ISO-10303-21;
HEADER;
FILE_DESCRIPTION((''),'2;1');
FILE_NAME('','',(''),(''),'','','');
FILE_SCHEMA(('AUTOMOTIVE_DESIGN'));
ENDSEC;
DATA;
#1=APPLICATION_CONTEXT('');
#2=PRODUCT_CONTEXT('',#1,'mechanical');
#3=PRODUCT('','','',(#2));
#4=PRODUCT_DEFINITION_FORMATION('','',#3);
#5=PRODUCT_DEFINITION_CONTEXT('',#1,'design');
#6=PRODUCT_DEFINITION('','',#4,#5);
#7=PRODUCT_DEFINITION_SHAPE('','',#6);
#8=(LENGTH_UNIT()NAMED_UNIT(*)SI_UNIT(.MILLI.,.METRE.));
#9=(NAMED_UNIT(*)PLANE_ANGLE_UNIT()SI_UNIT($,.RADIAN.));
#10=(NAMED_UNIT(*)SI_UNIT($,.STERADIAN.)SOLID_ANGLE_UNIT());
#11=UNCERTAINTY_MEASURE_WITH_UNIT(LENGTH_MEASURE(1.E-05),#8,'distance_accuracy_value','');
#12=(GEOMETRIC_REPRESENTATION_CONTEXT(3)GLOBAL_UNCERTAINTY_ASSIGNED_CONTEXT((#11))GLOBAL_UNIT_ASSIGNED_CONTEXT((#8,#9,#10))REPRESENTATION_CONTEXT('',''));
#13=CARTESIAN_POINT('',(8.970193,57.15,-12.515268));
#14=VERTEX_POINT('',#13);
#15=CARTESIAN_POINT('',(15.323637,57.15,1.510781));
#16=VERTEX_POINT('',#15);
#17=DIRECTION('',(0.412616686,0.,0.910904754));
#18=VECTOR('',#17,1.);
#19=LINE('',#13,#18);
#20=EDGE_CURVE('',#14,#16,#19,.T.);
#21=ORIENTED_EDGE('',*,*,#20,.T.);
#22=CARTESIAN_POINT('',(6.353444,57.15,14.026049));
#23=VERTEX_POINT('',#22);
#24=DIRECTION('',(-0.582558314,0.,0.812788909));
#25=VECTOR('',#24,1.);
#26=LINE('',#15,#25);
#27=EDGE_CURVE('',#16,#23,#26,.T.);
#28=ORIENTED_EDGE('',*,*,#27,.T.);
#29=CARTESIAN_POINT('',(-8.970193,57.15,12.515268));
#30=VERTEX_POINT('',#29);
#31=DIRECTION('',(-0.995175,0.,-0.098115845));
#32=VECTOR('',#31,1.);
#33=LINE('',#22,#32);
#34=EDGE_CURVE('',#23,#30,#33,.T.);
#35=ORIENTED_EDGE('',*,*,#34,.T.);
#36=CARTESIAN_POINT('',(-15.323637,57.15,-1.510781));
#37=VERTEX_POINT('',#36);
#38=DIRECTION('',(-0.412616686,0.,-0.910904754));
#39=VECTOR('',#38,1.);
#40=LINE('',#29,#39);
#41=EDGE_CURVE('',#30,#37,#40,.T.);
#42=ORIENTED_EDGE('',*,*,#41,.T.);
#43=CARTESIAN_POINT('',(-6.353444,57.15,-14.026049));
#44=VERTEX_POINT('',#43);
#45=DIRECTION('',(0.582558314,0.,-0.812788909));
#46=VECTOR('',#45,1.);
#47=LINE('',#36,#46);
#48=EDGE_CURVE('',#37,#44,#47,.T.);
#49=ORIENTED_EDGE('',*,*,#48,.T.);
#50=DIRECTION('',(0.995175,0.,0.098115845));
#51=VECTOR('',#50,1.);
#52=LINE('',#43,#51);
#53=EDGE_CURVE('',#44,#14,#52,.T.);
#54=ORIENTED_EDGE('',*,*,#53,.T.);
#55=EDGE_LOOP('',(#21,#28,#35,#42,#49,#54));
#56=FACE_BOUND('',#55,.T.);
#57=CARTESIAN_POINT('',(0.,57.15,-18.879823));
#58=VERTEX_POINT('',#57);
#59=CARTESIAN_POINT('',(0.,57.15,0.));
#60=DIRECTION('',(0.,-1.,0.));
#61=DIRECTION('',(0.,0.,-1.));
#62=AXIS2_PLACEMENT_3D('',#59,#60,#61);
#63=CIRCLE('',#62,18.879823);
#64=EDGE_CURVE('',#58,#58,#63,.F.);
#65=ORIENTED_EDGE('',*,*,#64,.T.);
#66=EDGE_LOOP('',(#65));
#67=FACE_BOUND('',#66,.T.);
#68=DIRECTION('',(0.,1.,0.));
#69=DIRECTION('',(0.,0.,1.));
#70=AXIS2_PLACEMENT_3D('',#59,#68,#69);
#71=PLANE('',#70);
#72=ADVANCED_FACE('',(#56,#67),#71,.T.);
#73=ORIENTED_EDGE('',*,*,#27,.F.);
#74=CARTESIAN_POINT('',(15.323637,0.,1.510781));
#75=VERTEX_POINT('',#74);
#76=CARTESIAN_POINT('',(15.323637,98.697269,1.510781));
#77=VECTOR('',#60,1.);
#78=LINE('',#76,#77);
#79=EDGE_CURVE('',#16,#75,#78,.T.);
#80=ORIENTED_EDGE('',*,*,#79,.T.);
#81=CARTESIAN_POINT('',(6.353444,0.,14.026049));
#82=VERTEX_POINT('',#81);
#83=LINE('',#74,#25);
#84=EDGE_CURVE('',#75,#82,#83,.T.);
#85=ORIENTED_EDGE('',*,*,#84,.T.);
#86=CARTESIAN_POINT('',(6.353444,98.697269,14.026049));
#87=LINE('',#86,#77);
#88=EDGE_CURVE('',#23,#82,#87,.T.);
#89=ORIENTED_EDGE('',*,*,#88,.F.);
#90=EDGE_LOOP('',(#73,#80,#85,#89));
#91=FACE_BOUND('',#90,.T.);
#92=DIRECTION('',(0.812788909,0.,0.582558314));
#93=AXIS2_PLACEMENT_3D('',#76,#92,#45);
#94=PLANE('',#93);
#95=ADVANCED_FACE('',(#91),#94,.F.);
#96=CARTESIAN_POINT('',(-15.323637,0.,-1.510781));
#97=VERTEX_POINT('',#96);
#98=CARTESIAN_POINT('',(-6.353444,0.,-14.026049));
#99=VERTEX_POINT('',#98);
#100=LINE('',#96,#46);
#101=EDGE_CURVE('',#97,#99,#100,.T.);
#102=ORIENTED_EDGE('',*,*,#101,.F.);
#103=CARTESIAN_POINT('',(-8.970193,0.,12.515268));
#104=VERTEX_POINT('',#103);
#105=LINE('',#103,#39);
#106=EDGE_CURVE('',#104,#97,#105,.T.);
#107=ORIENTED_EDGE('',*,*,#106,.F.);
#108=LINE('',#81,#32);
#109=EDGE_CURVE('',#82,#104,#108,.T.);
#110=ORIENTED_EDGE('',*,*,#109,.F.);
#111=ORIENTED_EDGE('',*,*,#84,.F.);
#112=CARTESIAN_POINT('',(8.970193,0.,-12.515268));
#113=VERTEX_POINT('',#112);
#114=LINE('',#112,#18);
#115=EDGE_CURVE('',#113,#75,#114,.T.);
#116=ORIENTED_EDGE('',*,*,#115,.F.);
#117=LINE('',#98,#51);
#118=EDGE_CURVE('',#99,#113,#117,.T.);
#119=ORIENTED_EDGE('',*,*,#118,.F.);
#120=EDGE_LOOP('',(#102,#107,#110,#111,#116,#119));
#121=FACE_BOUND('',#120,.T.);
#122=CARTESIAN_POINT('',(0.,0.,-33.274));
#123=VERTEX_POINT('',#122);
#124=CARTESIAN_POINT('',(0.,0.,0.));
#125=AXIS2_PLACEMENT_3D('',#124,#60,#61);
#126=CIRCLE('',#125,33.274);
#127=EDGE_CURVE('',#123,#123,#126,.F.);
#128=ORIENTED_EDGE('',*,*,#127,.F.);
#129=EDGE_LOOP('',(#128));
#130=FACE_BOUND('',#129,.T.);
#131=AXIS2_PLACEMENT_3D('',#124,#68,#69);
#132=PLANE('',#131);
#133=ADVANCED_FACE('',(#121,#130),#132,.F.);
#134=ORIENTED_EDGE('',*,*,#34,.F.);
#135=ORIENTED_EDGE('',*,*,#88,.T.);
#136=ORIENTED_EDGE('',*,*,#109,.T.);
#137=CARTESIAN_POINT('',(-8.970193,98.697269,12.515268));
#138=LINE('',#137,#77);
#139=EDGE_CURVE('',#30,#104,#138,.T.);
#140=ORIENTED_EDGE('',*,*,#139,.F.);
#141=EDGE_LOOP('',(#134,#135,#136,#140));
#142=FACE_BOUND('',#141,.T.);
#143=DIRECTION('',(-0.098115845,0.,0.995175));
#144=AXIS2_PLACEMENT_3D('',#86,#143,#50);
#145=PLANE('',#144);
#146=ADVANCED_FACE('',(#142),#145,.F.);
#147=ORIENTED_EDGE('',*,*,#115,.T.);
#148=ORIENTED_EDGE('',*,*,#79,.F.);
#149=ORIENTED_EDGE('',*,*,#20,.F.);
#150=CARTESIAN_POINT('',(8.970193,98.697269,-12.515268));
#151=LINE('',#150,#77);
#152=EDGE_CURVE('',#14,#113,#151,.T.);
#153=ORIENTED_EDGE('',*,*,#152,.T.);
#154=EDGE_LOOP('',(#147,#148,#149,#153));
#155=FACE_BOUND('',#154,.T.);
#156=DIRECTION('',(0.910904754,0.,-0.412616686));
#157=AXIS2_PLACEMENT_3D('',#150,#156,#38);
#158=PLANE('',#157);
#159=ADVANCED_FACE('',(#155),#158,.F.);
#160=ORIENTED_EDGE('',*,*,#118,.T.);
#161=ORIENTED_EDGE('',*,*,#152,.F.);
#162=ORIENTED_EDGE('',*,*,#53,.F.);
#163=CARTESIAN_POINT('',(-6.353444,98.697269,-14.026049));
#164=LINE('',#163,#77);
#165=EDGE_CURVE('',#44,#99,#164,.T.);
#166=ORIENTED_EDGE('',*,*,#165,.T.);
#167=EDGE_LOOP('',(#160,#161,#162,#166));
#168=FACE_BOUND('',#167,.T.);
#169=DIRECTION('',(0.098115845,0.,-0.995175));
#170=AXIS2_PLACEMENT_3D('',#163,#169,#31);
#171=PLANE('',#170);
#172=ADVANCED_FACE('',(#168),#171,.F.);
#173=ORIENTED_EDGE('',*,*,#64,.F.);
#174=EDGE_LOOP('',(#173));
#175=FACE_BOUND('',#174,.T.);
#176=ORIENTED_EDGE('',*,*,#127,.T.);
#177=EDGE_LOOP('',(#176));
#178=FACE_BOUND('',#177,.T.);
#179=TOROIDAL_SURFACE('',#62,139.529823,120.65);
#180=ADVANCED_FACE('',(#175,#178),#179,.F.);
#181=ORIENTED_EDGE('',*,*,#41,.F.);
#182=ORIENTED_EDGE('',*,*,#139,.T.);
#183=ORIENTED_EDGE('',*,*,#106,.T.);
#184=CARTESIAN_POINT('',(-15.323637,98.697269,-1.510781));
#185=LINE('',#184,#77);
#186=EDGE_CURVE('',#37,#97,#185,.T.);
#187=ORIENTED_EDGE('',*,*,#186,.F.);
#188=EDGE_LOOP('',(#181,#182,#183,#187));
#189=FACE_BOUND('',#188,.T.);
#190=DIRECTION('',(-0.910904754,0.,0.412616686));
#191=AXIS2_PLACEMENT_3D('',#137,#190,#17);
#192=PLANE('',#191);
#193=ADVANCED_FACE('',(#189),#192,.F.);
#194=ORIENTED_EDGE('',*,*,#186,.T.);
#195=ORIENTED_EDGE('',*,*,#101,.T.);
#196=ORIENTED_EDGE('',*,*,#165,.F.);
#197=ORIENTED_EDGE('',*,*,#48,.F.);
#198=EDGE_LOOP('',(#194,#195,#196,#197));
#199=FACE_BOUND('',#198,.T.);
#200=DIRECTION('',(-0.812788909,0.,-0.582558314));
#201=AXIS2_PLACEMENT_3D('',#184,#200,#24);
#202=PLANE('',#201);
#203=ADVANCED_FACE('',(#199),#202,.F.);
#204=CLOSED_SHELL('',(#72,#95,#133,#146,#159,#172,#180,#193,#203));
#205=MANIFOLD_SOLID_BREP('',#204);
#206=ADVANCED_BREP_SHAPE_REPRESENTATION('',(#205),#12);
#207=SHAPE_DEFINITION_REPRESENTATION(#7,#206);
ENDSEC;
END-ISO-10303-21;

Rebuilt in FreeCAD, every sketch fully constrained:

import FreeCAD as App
import Part
import Sketcher

V = App.Vector
Q = App.Units.Quantity

doc = App.newDocument("Part")
body = doc.addObject("PartDesign::Body", "Body")

sketch1 = body.newObject("Sketcher::SketchObject", "Sketch")
sketch1.AttachmentSupport = (doc.getObject("XZ_Plane"), [""])
sketch1.MapMode = "FlatFace"
sketch1.addGeometry(Part.Circle(V(0, 0, 0), V(0, 0, 1), 33), False)
sketch1.addConstraint([
    Sketcher.Constraint("Coincident", 0, 3, -1, 1),
    Sketcher.Constraint("Diameter", 0, Q("2.62 in")),
])
pad1 = body.newObject("PartDesign::Pad", "Pad")
pad1.Profile = sketch1
pad1.Length = Q("2.25 in")
pad1.Reversed = True

sketch2 = body.newObject("Sketcher::SketchObject", "Sketch001")
sketch2.AttachmentSupport = (doc.getObject("XZ_Plane"), [""])
sketch2.MapMode = "FlatFace"
sketch2.addGeometry([
    Part.LineSegment(V(-15, -2, 0), V(-6, -14, 0)),
    Part.LineSegment(V(-6, -14, 0), V(9, -13, 0)),
    Part.LineSegment(V(9, -13, 0), V(15, 2, 0)),
    Part.LineSegment(V(15, 2, 0), V(6, 14, 0)),
    Part.LineSegment(V(6, 14, 0), V(-9, 13, 0)),
    Part.LineSegment(V(-9, 13, 0), V(-15, -2, 0)),
], False)
sketch2.addConstraint([
    Sketcher.Constraint("Coincident", 0, 2, 1, 1),
    Sketcher.Constraint("Coincident", 1, 2, 2, 1),
    Sketcher.Constraint("Coincident", 2, 2, 3, 1),
    Sketcher.Constraint("Coincident", 3, 2, 4, 1),
    Sketcher.Constraint("Coincident", 4, 2, 5, 1),
    Sketcher.Constraint("Coincident", 5, 2, 0, 1),
    Sketcher.Constraint("Symmetric", 0, 2, 3, 2, -1, 1),
    Sketcher.Constraint("Symmetric", 1, 2, 4, 2, -1, 1),
    Sketcher.Constraint("Symmetric", 2, 2, 5, 2, -1, 1),
    Sketcher.Constraint("Equal", 0, 1),
    Sketcher.Constraint("Equal", 1, 2),
    Sketcher.Constraint("DistanceY", 0, 2, 3, 2, 28.052098),
    Sketcher.Constraint("Distance", 0, 15.397932),
    Sketcher.Constraint("DistanceY", 1, 2, -1, 1, 12.515268),
    Sketcher.Constraint("DistanceY", -1, 1, 2, 2, 1.510781),
])
pocket1 = body.newObject("PartDesign::Pocket", "Pocket")
pocket1.Profile = sketch2
pocket1.Length = Q("2.25 in")

sketch3 = body.newObject("Sketcher::SketchObject", "Sketch002")
sketch3.AttachmentSupport = (doc.getObject("XY_Plane"), [""])
sketch3.MapMode = "FlatFace"
sketch3.addGeometry(Part.Circle(V(-140, 57, 0), V(0, 0, 1), 121), False)
sketch3.addConstraint([
    Sketcher.Constraint("Diameter", 0, Q("9.5 in")),
    Sketcher.Constraint("DistanceY", -1, 1, 0, 3, Q("2.25 in")),
    Sketcher.Constraint("DistanceX", 0, 3, -1, 1, Q("5.4933001 in")),
])
groove = body.newObject("PartDesign::Groove", "Groove")
groove.Profile = sketch3
groove.ReferenceAxis = (sketch3, ["V_Axis"])
groove.Angle = 360

doc.recompute()
